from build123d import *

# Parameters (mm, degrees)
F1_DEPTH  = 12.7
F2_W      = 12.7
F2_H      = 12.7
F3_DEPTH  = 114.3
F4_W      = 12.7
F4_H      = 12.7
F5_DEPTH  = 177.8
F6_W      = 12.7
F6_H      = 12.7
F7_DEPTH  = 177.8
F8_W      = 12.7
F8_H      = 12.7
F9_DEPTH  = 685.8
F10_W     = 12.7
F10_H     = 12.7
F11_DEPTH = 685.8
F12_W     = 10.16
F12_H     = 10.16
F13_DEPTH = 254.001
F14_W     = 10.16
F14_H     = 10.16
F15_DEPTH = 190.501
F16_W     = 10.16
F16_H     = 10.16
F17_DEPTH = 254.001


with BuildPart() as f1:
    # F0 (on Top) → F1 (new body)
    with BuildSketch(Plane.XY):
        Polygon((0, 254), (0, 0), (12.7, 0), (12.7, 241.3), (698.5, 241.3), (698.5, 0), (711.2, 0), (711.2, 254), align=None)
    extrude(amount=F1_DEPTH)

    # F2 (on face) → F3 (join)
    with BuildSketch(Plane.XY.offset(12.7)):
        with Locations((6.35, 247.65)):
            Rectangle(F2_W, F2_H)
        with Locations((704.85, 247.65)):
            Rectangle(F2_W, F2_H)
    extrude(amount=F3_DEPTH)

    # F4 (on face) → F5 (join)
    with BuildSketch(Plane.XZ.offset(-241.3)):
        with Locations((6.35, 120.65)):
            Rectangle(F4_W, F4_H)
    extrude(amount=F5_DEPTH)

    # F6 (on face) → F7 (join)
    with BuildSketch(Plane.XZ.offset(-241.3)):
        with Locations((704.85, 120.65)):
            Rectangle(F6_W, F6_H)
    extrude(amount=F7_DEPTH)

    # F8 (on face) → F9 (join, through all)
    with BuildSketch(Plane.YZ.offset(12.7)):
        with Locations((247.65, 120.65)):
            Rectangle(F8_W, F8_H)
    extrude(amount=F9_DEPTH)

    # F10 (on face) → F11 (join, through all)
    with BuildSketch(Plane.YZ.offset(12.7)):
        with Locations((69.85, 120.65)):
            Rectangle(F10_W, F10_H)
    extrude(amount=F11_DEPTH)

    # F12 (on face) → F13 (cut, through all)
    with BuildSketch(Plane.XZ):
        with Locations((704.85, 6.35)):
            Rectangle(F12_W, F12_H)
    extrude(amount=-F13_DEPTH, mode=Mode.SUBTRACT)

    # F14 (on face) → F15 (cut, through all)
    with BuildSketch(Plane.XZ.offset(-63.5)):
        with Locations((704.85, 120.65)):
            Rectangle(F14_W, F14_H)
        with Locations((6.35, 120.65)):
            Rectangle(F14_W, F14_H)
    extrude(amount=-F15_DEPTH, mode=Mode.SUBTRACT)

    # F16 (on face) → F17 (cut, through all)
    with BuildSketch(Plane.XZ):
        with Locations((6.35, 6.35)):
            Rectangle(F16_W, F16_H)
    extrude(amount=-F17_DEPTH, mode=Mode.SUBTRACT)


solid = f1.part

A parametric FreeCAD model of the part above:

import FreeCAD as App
import Part
import Sketcher
Q = App.Units.Quantity

doc = App.newDocument("Part")
body = doc.addObject("PartDesign::Body", "Body")

sketch1 = body.newObject("Sketcher::SketchObject", "Sketch")
sketch1.AttachmentSupport = (doc.getObject("XY_Plane"), [""])
sketch1.MapMode = "FlatFace"
sketch1.addGeometry([
    Part.LineSegment(App.Vector(0, 254, 0), App.Vector(0, 0, 0)),
    Part.LineSegment(App.Vector(0, 0, 0), App.Vector(13, 0, 0)),
    Part.LineSegment(App.Vector(13, 0, 0), App.Vector(13, 241, 0)),
    Part.LineSegment(App.Vector(13, 241, 0), App.Vector(698, 241, 0)),
    Part.LineSegment(App.Vector(698, 241, 0), App.Vector(698, 0, 0)),
    Part.LineSegment(App.Vector(698, 0, 0), App.Vector(711, 0, 0)),
    Part.LineSegment(App.Vector(711, 0, 0), App.Vector(711, 254, 0)),
    Part.LineSegment(App.Vector(711, 254, 0), App.Vector(0, 254, 0)),
], False)
sketch1.addConstraint([
    Sketcher.Constraint("Coincident", 0, 2, 1, 1),
    Sketcher.Constraint("Coincident", 1, 2, 2, 1),
    Sketcher.Constraint("Coincident", 2, 2, 3, 1),
    Sketcher.Constraint("Coincident", 3, 2, 4, 1),
    Sketcher.Constraint("Coincident", 4, 2, 5, 1),
    Sketcher.Constraint("Coincident", 5, 2, 6, 1),
    Sketcher.Constraint("Coincident", 6, 2, 7, 1),
    Sketcher.Constraint("Coincident", 7, 2, 0, 1),
    Sketcher.Constraint("Vertical", 0),
    Sketcher.Constraint("Horizontal", 1),
    Sketcher.Constraint("Vertical", 2),
    Sketcher.Constraint("Horizontal", 3),
    Sketcher.Constraint("Vertical", 4),
    Sketcher.Constraint("Horizontal", 5),
    Sketcher.Constraint("Vertical", 6),
    Sketcher.Constraint("Horizontal", 7),
    Sketcher.Constraint("Coincident", 0, 2, -1, 1),
    Sketcher.Constraint("PointOnObject", 4, 2, -1),
    Sketcher.Constraint("Equal", 1, 5),
    Sketcher.Constraint("DistanceX", 3, 1, 3, 2, Q("27 in")),
    Sketcher.Constraint("DistanceX", 7, 2, 7, 1, Q("28 in")),
    Sketcher.Constraint("DistanceY", 0, 2, 0, 1, Q("10 in")),
    Sketcher.Constraint("DistanceY", 2, 1, 2, 2, Q("9.5 in")),
])
pad1 = body.newObject("PartDesign::Pad", "Pad")
pad1.Profile = sketch1
pad1.Length = Q("0.5 in")

sketch2 = body.newObject("Sketcher::SketchObject", "Sketch001")
sketch2.AttachmentSupport = (doc.getObject("XY_Plane"), [""])
sketch2.MapMode = "FlatFace"
sketch2.AttachmentOffset = App.Placement(App.Vector(0, 0, 0.5 * 25.4), App.Rotation())
sketch2.addGeometry([
    Part.LineSegment(App.Vector(0, 254, 0), App.Vector(0, 241, 0)),
    Part.LineSegment(App.Vector(0, 241, 0), App.Vector(13, 241, 0)),
    Part.LineSegment(App.Vector(13, 241, 0), App.Vector(13, 254, 0)),
    Part.LineSegment(App.Vector(13, 254, 0), App.Vector(0, 254, 0)),
    Part.LineSegment(App.Vector(698, 254, 0), App.Vector(698, 241, 0)),
    Part.LineSegment(App.Vector(698, 241, 0), App.Vector(711, 241, 0)),
    Part.LineSegment(App.Vector(711, 241, 0), App.Vector(711, 254, 0)),
    Part.LineSegment(App.Vector(711, 254, 0), App.Vector(698, 254, 0)),
], False)
sketch2.addConstraint([
    Sketcher.Constraint("Coincident", 0, 2, 1, 1),
    Sketcher.Constraint("Coincident", 1, 2, 2, 1),
    Sketcher.Constraint("Coincident", 2, 2, 3, 1),
    Sketcher.Constraint("Coincident", 3, 2, 0, 1),
    Sketcher.Constraint("Coincident", 4, 2, 5, 1),
    Sketcher.Constraint("Coincident", 5, 2, 6, 1),
    Sketcher.Constraint("Coincident", 6, 2, 7, 1),
    Sketcher.Constraint("Coincident", 7, 2, 4, 1),
    Sketcher.Constraint("Vertical", 0),
    Sketcher.Constraint("Horizontal", 1),
    Sketcher.Constraint("Vertical", 2),
    Sketcher.Constraint("Horizontal", 3),
    Sketcher.Constraint("Vertical", 4),
    Sketcher.Constraint("Horizontal", 5),
    Sketcher.Constraint("Vertical", 6),
    Sketcher.Constraint("Horizontal", 7),
    Sketcher.Constraint("PointOnObject", 0, 2, -2),
    Sketcher.Constraint("Horizontal", 1, 2, 4, 2),
    Sketcher.Constraint("Horizontal", 3, 2, 6, 2),
    Sketcher.Constraint("Equal", 3, 5),
    Sketcher.Constraint("Equal", 7, 0),
    Sketcher.Constraint("DistanceX", 1, 1, 1, 2, Q("0.5 in")),
    Sketcher.Constraint("DistanceY", -1, 1, 2, 2, Q("10 in")),
    Sketcher.Constraint("DistanceX", -1, 1, 5, 2, Q("28 in")),
])
pad2 = body.newObject("PartDesign::Pad", "Pad001")
pad2.Profile = sketch2
pad2.Length = Q("4.5 in")

sketch3 = body.newObject("Sketcher::SketchObject", "Sketch002")
sketch3.AttachmentSupport = (doc.getObject("XZ_Plane"), [""])
sketch3.MapMode = "FlatFace"
sketch3.AttachmentOffset = App.Placement(App.Vector(0, 0, -9.5 * 25.4), App.Rotation())
sketch3.addGeometry([
    Part.LineSegment(App.Vector(0, 127, 0), App.Vector(0, 114, 0)),
    Part.LineSegment(App.Vector(0, 114, 0), App.Vector(13, 114, 0)),
    Part.LineSegment(App.Vector(13, 114, 0), App.Vector(13, 127, 0)),
    Part.LineSegment(App.Vector(13, 127, 0), App.Vector(0, 127, 0)),
], False)
sketch3.addConstraint([
    Sketcher.Constraint("Coincident", 0, 2, 1, 1),
    Sketcher.Constraint("Coincident", 1, 2, 2, 1),
    Sketcher.Constraint("Coincident", 2, 2, 3, 1),
    Sketcher.Constraint("Coincident", 3, 2, 0, 1),
    Sketcher.Constraint("Vertical", 0),
    Sketcher.Constraint("Horizontal", 1),
    Sketcher.Constraint("Vertical", 2),
    Sketcher.Constraint("Horizontal", 3),
    Sketcher.Constraint("PointOnObject", 0, 2, -2),
    Sketcher.Constraint("Equal", 3, 0),
    Sketcher.Constraint("DistanceX", 1, 1, 1, 2, Q("0.5 in")),
    Sketcher.Constraint("DistanceY", -1, 1, 2, 2, Q("5 in")),
])
pad3 = body.newObject("PartDesign::Pad", "Pad002")
pad3.Profile = sketch3
pad3.Length = Q("7 in")

sketch4 = body.newObject("Sketcher::SketchObject", "Sketch003")
sketch4.AttachmentSupport = (doc.getObject("XZ_Plane"), [""])
sketch4.MapMode = "FlatFace"
sketch4.AttachmentOffset = App.Placement(App.Vector(0, 0, -9.5 * 25.4), App.Rotation())
sketch4.addGeometry([
    Part.LineSegment(App.Vector(698, 127, 0), App.Vector(698, 114, 0)),
    Part.LineSegment(App.Vector(698, 114, 0), App.Vector(711, 114, 0)),
    Part.LineSegment(App.Vector(711, 114, 0), App.Vector(711, 127, 0)),
    Part.LineSegment(App.Vector(711, 127, 0), App.Vector(698, 127, 0)),
], False)
sketch4.addConstraint([
    Sketcher.Constraint("Coincident", 0, 2, 1, 1),
    Sketcher.Constraint("Coincident", 1, 2, 2, 1),
    Sketcher.Constraint("Coincident", 2, 2, 3, 1),
    Sketcher.Constraint("Coincident", 3, 2, 0, 1),
    Sketcher.Constraint("Vertical", 0),
    Sketcher.Constraint("Horizontal", 1),
    Sketcher.Constraint("Vertical", 2),
    Sketcher.Constraint("Horizontal", 3),
    Sketcher.Constraint("Equal", 3, 0),
    Sketcher.Constraint("DistanceX", 1, 1, 1, 2, Q("0.5 in")),
    Sketcher.Constraint("DistanceX", -1, 1, 1, 2, Q("28 in")),
    Sketcher.Constraint("DistanceY", -1, 1, 2, 2, Q("5 in")),
])
pad4 = body.newObject("PartDesign::Pad", "Pad003")
pad4.Profile = sketch4
pad4.Length = Q("7 in")

sketch5 = body.newObject("Sketcher::SketchObject", "Sketch004")
sketch5.AttachmentSupport = (doc.getObject("YZ_Plane"), [""])
sketch5.MapMode = "FlatFace"
sketch5.AttachmentOffset = App.Placement(App.Vector(0, 0, 0.5 * 25.4), App.Rotation())
sketch5.addGeometry([
    Part.LineSegment(App.Vector(241, 127, 0), App.Vector(241, 114, 0)),
    Part.LineSegment(App.Vector(241, 114, 0), App.Vector(254, 114, 0)),
    Part.LineSegment(App.Vector(254, 114, 0), App.Vector(254, 127, 0)),
    Part.LineSegment(App.Vector(254, 127, 0), App.Vector(241, 127, 0)),
], False)
sketch5.addConstraint([
    Sketcher.Constraint("Coincident", 0, 2, 1, 1),
    Sketcher.Constraint("Coincident", 1, 2, 2, 1),
    Sketcher.Constraint("Coincident", 2, 2, 3, 1),
    Sketcher.Constraint("Coincident", 3, 2, 0, 1),
    Sketcher.Constraint("Vertical", 0),
    Sketcher.Constraint("Horizontal", 1),
    Sketcher.Constraint("Vertical", 2),
    Sketcher.Constraint("Horizontal", 3),
    Sketcher.Constraint("Equal", 3, 0),
    Sketcher.Constraint("DistanceX", 1, 1, 1, 2, Q("0.5 in")),
    Sketcher.Constraint("DistanceX", -1, 1, 1, 2, Q("10 in")),
    Sketcher.Constraint("DistanceY", -1, 1, 2, 2, Q("5 in")),
])
pad5 = body.newObject("PartDesign::Pad", "Pad004")
pad5.Profile = sketch5
pad5.Type = "UpToLast"

sketch6 = body.newObject("Sketcher::SketchObject", "Sketch005")
sketch6.AttachmentSupport = (doc.getObject("YZ_Plane"), [""])
sketch6.MapMode = "FlatFace"
sketch6.AttachmentOffset = App.Placement(App.Vector(0, 0, 0.5 * 25.4), App.Rotation())
sketch6.addGeometry([
    Part.LineSegment(App.Vector(64, 127, 0), App.Vector(64, 114, 0)),
    Part.LineSegment(App.Vector(64, 114, 0), App.Vector(76, 114, 0)),
    Part.LineSegment(App.Vector(76, 114, 0), App.Vector(76, 127, 0)),
    Part.LineSegment(App.Vector(76, 127, 0), App.Vector(64, 127, 0)),
], False)
sketch6.addConstraint([
    Sketcher.Constraint("Coincident", 0, 2, 1, 1),
    Sketcher.Constraint("Coincident", 1, 2, 2, 1),
    Sketcher.Constraint("Coincident", 2, 2, 3, 1),
    Sketcher.Constraint("Coincident", 3, 2, 0, 1),
    Sketcher.Constraint("Vertical", 0),
    Sketcher.Constraint("Horizontal", 1),
    Sketcher.Constraint("Vertical", 2),
    Sketcher.Constraint("Horizontal", 3),
    Sketcher.Constraint("Equal", 3, 0),
    Sketcher.Constraint("DistanceX", 1, 1, 1, 2, Q("0.5 in")),
    Sketcher.Constraint("DistanceX", -1, 1, 1, 2, Q("3 in")),
    Sketcher.Constraint("DistanceY", -1, 1, 2, 2, Q("5 in")),
])
pad6 = body.newObject("PartDesign::Pad", "Pad005")
pad6.Profile = sketch6
pad6.Type = "UpToLast"

sketch7 = body.newObject("Sketcher::SketchObject", "Sketch006")
sketch7.AttachmentSupport = (doc.getObject("XZ_Plane"), [""])
sketch7.MapMode = "FlatFace"
sketch7.addGeometry([
    Part.LineSegment(App.Vector(700, 11, 0), App.Vector(700, 1, 0)),
    Part.LineSegment(App.Vector(700, 1, 0), App.Vector(710, 1, 0)),
    Part.LineSegment(App.Vector(710, 1, 0), App.Vector(710, 11, 0)),
    Part.LineSegment(App.Vector(710, 11, 0), App.Vector(700, 11, 0)),
], False)
sketch7.addConstraint([
    Sketcher.Constraint("Coincident", 0, 2, 1, 1),
    Sketcher.Constraint("Coincident", 1, 2, 2, 1),
    Sketcher.Constraint("Coincident", 2, 2, 3, 1),
    Sketcher.Constraint("Coincident", 3, 2, 0, 1),
    Sketcher.Constraint("Vertical", 0),
    Sketcher.Constraint("Horizontal", 1),
    Sketcher.Constraint("Vertical", 2),
    Sketcher.Constraint("Horizontal", 3),
    Sketcher.Constraint("Equal", 3, 0),
    Sketcher.Constraint("DistanceX", 1, 1, 1, 2, Q("0.4 in")),
    Sketcher.Constraint("DistanceX", -1, 1, 0, 2, Q("27.55 in")),
    Sketcher.Constraint("DistanceY", -1, 1, 0, 2, Q("0.05 in")),
])
pocket1 = body.newObject("PartDesign::Pocket", "Pocket")
pocket1.Profile = sketch7
pocket1.Type = "ThroughAll"

sketch8 = body.newObject("Sketcher::SketchObject", "Sketch007")
sketch8.AttachmentSupport = (doc.getObject("XZ_Plane"), [""])
sketch8.MapMode = "FlatFace"
sketch8.AttachmentOffset = App.Placement(App.Vector(0, 0, -2.5 * 25.4), App.Rotation())
sketch8.addGeometry([
    Part.LineSegment(App.Vector(700, 126, 0), App.Vector(700, 116, 0)),
    Part.LineSegment(App.Vector(700, 116, 0), App.Vector(710, 116, 0)),
    Part.LineSegment(App.Vector(710, 116, 0), App.Vector(710, 126, 0)),
    Part.LineSegment(App.Vector(710, 126, 0), App.Vector(700, 126, 0)),
    Part.LineSegment(App.Vector(1, 126, 0), App.Vector(1, 116, 0)),
    Part.LineSegment(App.Vector(1, 116, 0), App.Vector(11, 116, 0)),
    Part.LineSegment(App.Vector(11, 116, 0), App.Vector(11, 126, 0)),
    Part.LineSegment(App.Vector(11, 126, 0), App.Vector(1, 126, 0)),
], False)
sketch8.addConstraint([
    Sketcher.Constraint("Coincident", 0, 2, 1, 1),
    Sketcher.Constraint("Coincident", 1, 2, 2, 1),
    Sketcher.Constraint("Coincident", 2, 2, 3, 1),
    Sketcher.Constraint("Coincident", 3, 2, 0, 1),
    Sketcher.Constraint("Coincident", 4, 2, 5, 1),
    Sketcher.Constraint("Coincident", 5, 2, 6, 1),
    Sketcher.Constraint("Coincident", 6, 2, 7, 1),
    Sketcher.Constraint("Coincident", 7, 2, 4, 1),
    Sketcher.Constraint("Vertical", 0),
    Sketcher.Constraint("Horizontal", 1),
    Sketcher.Constraint("Vertical", 2),
    Sketcher.Constraint("Horizontal", 3),
    Sketcher.Constraint("Vertical", 4),
    Sketcher.Constraint("Horizontal", 5),
    Sketcher.Constraint("Vertical", 6),
    Sketcher.Constraint("Horizontal", 7),
    Sketcher.Constraint("Horizontal", 1, 2, 4, 2),
    Sketcher.Constraint("Horizontal", 3, 2, 6, 2),
    Sketcher.Constraint("Equal", 3, 5),
    Sketcher.Constraint("Equal", 7, 0),
    Sketcher.Constraint("DistanceX", 1, 1, 1, 2, Q("0.4 in")),
    Sketcher.Constraint("DistanceX", 4, 2, 0, 2, Q("27.5 in")),
    Sketcher.Constraint("DistanceX", -1, 1, 0, 2, Q("27.55 in")),
    Sketcher.Constraint("DistanceY", -1, 1, 0, 2, Q("4.55 in")),
])
pocket2 = body.newObject("PartDesign::Pocket", "Pocket001")
pocket2.Profile = sketch8
pocket2.Type = "ThroughAll"

sketch9 = body.newObject("Sketcher::SketchObject", "Sketch008")
sketch9.AttachmentSupport = (doc.getObject("XZ_Plane"), [""])
sketch9.MapMode = "FlatFace"
sketch9.addGeometry([
    Part.LineSegment(App.Vector(1, 11, 0), App.Vector(1, 1, 0)),
    Part.LineSegment(App.Vector(1, 1, 0), App.Vector(11, 1, 0)),
    Part.LineSegment(App.Vector(11, 1, 0), App.Vector(11, 11, 0)),
    Part.LineSegment(App.Vector(11, 11, 0), App.Vector(1, 11, 0)),
], False)
sketch9.addConstraint([
    Sketcher.Constraint("Coincident", 0, 2, 1, 1),
    Sketcher.Constraint("Coincident", 1, 2, 2, 1),
    Sketcher.Constraint("Coincident", 2, 2, 3, 1),
    Sketcher.Constraint("Coincident", 3, 2, 0, 1),
    Sketcher.Constraint("Vertical", 0),
    Sketcher.Constraint("Horizontal", 1),
    Sketcher.Constraint("Vertical", 2),
    Sketcher.Constraint("Horizontal", 3),
    Sketcher.Constraint("Equal", 3, 0),
    Sketcher.Constraint("DistanceX", 1, 1, 1, 2, Q("0.4 in")),
    Sketcher.Constraint("DistanceX", -1, 1, 0, 2, Q("0.05 in")),
    Sketcher.Constraint("DistanceY", -1, 1, 0, 2, Q("0.05 in")),
])
pocket3 = body.newObject("PartDesign::Pocket", "Pocket002")
pocket3.Profile = sketch9
pocket3.Type = "ThroughAll"

doc.recompute()
